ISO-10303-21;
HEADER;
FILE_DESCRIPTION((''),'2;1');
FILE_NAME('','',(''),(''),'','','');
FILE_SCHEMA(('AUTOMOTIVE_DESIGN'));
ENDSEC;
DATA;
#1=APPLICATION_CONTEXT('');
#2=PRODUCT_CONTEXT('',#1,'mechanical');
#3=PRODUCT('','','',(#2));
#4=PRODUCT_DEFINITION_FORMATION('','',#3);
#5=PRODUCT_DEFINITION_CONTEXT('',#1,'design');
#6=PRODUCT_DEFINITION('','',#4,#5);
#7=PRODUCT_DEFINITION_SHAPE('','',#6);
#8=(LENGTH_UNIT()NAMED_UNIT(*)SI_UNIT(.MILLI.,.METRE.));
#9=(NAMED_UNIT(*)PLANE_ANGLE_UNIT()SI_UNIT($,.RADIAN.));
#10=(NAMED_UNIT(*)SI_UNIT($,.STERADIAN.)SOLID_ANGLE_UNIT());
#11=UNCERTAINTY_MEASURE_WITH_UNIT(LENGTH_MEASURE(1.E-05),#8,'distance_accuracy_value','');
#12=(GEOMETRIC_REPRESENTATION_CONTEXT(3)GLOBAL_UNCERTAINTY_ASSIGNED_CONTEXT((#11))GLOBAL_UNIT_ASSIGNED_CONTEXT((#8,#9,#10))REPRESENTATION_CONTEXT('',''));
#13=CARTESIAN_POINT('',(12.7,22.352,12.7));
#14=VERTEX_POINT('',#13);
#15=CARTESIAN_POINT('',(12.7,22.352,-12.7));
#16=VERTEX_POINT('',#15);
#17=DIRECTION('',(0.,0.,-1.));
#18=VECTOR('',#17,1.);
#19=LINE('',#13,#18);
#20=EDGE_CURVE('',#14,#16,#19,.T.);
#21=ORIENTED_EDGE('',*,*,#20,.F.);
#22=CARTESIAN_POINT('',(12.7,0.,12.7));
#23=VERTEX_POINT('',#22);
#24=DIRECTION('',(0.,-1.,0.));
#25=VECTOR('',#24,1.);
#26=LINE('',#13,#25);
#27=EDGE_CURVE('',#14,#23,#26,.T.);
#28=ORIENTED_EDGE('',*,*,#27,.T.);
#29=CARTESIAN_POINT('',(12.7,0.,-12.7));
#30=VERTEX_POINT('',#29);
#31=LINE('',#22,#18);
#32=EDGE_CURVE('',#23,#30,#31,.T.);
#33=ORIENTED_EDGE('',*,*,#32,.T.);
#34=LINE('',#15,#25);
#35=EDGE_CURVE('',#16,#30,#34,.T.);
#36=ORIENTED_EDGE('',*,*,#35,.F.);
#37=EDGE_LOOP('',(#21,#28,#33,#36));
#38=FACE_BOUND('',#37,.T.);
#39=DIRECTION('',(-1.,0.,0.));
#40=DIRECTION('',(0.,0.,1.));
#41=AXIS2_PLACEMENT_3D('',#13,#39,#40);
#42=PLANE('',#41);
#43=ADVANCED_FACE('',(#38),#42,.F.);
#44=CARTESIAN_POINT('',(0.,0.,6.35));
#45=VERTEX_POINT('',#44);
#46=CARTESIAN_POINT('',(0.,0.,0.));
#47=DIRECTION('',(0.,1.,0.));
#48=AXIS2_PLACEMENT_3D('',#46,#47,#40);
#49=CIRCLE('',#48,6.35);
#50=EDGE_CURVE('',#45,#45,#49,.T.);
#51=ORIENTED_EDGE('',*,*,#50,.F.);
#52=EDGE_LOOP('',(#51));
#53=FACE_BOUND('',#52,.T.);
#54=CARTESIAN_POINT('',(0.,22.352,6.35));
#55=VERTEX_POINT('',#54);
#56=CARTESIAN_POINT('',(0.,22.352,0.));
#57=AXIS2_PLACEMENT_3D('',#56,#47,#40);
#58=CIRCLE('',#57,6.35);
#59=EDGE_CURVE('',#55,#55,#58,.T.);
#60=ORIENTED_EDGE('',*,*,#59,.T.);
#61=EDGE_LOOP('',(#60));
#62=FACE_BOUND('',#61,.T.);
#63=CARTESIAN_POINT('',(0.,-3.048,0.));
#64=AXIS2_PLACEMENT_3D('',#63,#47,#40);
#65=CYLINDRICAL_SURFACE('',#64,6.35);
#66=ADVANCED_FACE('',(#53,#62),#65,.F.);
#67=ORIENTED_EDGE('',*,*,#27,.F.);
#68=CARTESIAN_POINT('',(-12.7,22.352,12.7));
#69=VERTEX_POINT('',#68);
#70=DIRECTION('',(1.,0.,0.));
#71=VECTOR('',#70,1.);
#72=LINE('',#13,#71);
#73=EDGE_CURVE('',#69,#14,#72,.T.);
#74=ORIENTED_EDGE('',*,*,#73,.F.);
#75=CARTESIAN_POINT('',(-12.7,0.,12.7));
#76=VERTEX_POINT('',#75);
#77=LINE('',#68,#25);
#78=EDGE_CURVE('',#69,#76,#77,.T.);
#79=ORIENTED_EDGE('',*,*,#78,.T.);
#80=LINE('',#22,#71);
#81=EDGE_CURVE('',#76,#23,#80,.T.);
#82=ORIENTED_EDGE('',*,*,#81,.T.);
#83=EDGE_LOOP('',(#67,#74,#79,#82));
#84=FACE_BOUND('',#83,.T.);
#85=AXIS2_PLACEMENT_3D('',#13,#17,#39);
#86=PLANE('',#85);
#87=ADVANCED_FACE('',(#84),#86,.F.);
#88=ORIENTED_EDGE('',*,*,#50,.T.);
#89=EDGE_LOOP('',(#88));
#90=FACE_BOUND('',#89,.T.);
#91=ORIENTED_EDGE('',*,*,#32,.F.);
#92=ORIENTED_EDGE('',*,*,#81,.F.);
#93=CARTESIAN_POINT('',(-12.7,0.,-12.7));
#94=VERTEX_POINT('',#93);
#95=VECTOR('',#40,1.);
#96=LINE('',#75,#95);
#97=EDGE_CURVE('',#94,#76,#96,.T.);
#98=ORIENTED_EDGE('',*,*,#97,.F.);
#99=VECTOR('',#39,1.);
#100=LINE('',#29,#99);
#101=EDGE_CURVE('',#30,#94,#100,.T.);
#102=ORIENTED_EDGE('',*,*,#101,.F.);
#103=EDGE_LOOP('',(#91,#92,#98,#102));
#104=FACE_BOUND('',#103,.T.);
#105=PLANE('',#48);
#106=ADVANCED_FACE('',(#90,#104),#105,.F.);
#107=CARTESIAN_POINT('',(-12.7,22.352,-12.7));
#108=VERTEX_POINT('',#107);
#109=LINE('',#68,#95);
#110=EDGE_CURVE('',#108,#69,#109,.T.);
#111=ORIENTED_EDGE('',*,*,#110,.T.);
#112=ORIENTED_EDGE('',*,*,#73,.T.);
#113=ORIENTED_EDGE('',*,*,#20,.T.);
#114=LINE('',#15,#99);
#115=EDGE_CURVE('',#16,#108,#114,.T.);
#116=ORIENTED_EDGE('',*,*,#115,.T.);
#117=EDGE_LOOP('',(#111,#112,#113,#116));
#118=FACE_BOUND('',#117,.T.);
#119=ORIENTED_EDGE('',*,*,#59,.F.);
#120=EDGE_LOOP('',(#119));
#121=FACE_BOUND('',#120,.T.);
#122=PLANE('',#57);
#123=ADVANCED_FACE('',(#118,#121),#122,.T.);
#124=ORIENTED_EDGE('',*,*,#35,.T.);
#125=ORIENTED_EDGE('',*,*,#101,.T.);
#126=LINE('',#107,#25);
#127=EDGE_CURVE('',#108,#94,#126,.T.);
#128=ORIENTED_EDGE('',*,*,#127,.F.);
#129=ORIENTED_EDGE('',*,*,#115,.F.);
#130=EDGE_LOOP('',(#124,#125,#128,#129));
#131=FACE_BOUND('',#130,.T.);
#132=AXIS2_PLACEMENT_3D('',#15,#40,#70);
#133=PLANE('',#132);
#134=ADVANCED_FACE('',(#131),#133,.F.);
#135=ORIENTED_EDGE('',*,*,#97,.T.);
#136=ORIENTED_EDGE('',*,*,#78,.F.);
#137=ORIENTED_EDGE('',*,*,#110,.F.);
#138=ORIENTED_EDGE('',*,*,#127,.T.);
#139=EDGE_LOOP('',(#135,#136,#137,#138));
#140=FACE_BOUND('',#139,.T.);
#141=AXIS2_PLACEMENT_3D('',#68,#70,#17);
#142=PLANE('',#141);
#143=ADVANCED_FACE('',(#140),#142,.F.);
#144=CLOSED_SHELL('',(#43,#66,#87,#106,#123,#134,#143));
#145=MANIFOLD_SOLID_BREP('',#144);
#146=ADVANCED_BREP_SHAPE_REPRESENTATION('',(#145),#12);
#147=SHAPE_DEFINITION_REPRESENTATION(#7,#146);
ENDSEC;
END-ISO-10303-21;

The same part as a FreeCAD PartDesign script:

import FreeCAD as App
import Part
import Sketcher

V = App.Vector
Q = App.Units.Quantity


def add_polygon(sketch, points):
    """Adds a closed chain of lines whose ends are joined by coincident constraints."""
    first, n = sketch.GeometryCount, len(points)
    for a, b in zip(points, points[1:] + points[:1]):
        sketch.addGeometry(Part.LineSegment(App.Vector(*a, 0), App.Vector(*b, 0)), False)
    for i in range(n):
        sketch.addConstraint(Sketcher.Constraint("Coincident", first + i, 2, first + (i + 1) % n, 1))

doc = App.newDocument("Part")
body = doc.addObject("PartDesign::Body", "Body")

# Sketch on XZ plane
sketch1 = body.newObject("Sketcher::SketchObject", "Sketch")
sketch1.AttachmentSupport = (doc.getObject("XZ_Plane"), [""])
sketch1.MapMode = "FlatFace"
add_polygon(sketch1, [(-13, -13), (-13, 13), (13, 13), (13, -13)])  # lines 0-3
sketch1.addConstraint([
    Sketcher.Constraint("Vertical", 0),
    Sketcher.Constraint("Horizontal", 1),
    Sketcher.Constraint("Vertical", 2),
    Sketcher.Constraint("Horizontal", 3),
    Sketcher.Constraint("Symmetric", 0, 2, 2, 2, -1, 1),
    Sketcher.Constraint("Equal", 3, 0),
    Sketcher.Constraint("DistanceX", 1, 1, 1, 2, Q("1 in")),
])
pad1 = body.newObject("PartDesign::Pad", "Pad")
pad1.Profile = sketch1
pad1.Length = Q("0.88 in")
pad1.Reversed = True

# Sketch on XZ plane
sketch2 = body.newObject("Sketcher::SketchObject", "Sketch001")
sketch2.AttachmentSupport = (doc.getObject("XZ_Plane"), [""])
sketch2.MapMode = "FlatFace"
sketch2.AttachmentOffset = App.Placement(V(0, 0, -0.88 * 25.4), App.Rotation())
sketch2.addGeometry(Part.Circle(V(0, 0, 0), V(0, 0, 1), 6), False)
sketch2.addConstraint([
    Sketcher.Constraint("Coincident", 0, 3, -1, 1),
    Sketcher.Constraint("Diameter", 0, Q("0.5 in")),
])
pocket1 = body.newObject("PartDesign::Pocket", "Pocket")
pocket1.Profile = sketch2
pocket1.Length = Q("1 in")
pocket1.Reversed = True

doc.recompute()
